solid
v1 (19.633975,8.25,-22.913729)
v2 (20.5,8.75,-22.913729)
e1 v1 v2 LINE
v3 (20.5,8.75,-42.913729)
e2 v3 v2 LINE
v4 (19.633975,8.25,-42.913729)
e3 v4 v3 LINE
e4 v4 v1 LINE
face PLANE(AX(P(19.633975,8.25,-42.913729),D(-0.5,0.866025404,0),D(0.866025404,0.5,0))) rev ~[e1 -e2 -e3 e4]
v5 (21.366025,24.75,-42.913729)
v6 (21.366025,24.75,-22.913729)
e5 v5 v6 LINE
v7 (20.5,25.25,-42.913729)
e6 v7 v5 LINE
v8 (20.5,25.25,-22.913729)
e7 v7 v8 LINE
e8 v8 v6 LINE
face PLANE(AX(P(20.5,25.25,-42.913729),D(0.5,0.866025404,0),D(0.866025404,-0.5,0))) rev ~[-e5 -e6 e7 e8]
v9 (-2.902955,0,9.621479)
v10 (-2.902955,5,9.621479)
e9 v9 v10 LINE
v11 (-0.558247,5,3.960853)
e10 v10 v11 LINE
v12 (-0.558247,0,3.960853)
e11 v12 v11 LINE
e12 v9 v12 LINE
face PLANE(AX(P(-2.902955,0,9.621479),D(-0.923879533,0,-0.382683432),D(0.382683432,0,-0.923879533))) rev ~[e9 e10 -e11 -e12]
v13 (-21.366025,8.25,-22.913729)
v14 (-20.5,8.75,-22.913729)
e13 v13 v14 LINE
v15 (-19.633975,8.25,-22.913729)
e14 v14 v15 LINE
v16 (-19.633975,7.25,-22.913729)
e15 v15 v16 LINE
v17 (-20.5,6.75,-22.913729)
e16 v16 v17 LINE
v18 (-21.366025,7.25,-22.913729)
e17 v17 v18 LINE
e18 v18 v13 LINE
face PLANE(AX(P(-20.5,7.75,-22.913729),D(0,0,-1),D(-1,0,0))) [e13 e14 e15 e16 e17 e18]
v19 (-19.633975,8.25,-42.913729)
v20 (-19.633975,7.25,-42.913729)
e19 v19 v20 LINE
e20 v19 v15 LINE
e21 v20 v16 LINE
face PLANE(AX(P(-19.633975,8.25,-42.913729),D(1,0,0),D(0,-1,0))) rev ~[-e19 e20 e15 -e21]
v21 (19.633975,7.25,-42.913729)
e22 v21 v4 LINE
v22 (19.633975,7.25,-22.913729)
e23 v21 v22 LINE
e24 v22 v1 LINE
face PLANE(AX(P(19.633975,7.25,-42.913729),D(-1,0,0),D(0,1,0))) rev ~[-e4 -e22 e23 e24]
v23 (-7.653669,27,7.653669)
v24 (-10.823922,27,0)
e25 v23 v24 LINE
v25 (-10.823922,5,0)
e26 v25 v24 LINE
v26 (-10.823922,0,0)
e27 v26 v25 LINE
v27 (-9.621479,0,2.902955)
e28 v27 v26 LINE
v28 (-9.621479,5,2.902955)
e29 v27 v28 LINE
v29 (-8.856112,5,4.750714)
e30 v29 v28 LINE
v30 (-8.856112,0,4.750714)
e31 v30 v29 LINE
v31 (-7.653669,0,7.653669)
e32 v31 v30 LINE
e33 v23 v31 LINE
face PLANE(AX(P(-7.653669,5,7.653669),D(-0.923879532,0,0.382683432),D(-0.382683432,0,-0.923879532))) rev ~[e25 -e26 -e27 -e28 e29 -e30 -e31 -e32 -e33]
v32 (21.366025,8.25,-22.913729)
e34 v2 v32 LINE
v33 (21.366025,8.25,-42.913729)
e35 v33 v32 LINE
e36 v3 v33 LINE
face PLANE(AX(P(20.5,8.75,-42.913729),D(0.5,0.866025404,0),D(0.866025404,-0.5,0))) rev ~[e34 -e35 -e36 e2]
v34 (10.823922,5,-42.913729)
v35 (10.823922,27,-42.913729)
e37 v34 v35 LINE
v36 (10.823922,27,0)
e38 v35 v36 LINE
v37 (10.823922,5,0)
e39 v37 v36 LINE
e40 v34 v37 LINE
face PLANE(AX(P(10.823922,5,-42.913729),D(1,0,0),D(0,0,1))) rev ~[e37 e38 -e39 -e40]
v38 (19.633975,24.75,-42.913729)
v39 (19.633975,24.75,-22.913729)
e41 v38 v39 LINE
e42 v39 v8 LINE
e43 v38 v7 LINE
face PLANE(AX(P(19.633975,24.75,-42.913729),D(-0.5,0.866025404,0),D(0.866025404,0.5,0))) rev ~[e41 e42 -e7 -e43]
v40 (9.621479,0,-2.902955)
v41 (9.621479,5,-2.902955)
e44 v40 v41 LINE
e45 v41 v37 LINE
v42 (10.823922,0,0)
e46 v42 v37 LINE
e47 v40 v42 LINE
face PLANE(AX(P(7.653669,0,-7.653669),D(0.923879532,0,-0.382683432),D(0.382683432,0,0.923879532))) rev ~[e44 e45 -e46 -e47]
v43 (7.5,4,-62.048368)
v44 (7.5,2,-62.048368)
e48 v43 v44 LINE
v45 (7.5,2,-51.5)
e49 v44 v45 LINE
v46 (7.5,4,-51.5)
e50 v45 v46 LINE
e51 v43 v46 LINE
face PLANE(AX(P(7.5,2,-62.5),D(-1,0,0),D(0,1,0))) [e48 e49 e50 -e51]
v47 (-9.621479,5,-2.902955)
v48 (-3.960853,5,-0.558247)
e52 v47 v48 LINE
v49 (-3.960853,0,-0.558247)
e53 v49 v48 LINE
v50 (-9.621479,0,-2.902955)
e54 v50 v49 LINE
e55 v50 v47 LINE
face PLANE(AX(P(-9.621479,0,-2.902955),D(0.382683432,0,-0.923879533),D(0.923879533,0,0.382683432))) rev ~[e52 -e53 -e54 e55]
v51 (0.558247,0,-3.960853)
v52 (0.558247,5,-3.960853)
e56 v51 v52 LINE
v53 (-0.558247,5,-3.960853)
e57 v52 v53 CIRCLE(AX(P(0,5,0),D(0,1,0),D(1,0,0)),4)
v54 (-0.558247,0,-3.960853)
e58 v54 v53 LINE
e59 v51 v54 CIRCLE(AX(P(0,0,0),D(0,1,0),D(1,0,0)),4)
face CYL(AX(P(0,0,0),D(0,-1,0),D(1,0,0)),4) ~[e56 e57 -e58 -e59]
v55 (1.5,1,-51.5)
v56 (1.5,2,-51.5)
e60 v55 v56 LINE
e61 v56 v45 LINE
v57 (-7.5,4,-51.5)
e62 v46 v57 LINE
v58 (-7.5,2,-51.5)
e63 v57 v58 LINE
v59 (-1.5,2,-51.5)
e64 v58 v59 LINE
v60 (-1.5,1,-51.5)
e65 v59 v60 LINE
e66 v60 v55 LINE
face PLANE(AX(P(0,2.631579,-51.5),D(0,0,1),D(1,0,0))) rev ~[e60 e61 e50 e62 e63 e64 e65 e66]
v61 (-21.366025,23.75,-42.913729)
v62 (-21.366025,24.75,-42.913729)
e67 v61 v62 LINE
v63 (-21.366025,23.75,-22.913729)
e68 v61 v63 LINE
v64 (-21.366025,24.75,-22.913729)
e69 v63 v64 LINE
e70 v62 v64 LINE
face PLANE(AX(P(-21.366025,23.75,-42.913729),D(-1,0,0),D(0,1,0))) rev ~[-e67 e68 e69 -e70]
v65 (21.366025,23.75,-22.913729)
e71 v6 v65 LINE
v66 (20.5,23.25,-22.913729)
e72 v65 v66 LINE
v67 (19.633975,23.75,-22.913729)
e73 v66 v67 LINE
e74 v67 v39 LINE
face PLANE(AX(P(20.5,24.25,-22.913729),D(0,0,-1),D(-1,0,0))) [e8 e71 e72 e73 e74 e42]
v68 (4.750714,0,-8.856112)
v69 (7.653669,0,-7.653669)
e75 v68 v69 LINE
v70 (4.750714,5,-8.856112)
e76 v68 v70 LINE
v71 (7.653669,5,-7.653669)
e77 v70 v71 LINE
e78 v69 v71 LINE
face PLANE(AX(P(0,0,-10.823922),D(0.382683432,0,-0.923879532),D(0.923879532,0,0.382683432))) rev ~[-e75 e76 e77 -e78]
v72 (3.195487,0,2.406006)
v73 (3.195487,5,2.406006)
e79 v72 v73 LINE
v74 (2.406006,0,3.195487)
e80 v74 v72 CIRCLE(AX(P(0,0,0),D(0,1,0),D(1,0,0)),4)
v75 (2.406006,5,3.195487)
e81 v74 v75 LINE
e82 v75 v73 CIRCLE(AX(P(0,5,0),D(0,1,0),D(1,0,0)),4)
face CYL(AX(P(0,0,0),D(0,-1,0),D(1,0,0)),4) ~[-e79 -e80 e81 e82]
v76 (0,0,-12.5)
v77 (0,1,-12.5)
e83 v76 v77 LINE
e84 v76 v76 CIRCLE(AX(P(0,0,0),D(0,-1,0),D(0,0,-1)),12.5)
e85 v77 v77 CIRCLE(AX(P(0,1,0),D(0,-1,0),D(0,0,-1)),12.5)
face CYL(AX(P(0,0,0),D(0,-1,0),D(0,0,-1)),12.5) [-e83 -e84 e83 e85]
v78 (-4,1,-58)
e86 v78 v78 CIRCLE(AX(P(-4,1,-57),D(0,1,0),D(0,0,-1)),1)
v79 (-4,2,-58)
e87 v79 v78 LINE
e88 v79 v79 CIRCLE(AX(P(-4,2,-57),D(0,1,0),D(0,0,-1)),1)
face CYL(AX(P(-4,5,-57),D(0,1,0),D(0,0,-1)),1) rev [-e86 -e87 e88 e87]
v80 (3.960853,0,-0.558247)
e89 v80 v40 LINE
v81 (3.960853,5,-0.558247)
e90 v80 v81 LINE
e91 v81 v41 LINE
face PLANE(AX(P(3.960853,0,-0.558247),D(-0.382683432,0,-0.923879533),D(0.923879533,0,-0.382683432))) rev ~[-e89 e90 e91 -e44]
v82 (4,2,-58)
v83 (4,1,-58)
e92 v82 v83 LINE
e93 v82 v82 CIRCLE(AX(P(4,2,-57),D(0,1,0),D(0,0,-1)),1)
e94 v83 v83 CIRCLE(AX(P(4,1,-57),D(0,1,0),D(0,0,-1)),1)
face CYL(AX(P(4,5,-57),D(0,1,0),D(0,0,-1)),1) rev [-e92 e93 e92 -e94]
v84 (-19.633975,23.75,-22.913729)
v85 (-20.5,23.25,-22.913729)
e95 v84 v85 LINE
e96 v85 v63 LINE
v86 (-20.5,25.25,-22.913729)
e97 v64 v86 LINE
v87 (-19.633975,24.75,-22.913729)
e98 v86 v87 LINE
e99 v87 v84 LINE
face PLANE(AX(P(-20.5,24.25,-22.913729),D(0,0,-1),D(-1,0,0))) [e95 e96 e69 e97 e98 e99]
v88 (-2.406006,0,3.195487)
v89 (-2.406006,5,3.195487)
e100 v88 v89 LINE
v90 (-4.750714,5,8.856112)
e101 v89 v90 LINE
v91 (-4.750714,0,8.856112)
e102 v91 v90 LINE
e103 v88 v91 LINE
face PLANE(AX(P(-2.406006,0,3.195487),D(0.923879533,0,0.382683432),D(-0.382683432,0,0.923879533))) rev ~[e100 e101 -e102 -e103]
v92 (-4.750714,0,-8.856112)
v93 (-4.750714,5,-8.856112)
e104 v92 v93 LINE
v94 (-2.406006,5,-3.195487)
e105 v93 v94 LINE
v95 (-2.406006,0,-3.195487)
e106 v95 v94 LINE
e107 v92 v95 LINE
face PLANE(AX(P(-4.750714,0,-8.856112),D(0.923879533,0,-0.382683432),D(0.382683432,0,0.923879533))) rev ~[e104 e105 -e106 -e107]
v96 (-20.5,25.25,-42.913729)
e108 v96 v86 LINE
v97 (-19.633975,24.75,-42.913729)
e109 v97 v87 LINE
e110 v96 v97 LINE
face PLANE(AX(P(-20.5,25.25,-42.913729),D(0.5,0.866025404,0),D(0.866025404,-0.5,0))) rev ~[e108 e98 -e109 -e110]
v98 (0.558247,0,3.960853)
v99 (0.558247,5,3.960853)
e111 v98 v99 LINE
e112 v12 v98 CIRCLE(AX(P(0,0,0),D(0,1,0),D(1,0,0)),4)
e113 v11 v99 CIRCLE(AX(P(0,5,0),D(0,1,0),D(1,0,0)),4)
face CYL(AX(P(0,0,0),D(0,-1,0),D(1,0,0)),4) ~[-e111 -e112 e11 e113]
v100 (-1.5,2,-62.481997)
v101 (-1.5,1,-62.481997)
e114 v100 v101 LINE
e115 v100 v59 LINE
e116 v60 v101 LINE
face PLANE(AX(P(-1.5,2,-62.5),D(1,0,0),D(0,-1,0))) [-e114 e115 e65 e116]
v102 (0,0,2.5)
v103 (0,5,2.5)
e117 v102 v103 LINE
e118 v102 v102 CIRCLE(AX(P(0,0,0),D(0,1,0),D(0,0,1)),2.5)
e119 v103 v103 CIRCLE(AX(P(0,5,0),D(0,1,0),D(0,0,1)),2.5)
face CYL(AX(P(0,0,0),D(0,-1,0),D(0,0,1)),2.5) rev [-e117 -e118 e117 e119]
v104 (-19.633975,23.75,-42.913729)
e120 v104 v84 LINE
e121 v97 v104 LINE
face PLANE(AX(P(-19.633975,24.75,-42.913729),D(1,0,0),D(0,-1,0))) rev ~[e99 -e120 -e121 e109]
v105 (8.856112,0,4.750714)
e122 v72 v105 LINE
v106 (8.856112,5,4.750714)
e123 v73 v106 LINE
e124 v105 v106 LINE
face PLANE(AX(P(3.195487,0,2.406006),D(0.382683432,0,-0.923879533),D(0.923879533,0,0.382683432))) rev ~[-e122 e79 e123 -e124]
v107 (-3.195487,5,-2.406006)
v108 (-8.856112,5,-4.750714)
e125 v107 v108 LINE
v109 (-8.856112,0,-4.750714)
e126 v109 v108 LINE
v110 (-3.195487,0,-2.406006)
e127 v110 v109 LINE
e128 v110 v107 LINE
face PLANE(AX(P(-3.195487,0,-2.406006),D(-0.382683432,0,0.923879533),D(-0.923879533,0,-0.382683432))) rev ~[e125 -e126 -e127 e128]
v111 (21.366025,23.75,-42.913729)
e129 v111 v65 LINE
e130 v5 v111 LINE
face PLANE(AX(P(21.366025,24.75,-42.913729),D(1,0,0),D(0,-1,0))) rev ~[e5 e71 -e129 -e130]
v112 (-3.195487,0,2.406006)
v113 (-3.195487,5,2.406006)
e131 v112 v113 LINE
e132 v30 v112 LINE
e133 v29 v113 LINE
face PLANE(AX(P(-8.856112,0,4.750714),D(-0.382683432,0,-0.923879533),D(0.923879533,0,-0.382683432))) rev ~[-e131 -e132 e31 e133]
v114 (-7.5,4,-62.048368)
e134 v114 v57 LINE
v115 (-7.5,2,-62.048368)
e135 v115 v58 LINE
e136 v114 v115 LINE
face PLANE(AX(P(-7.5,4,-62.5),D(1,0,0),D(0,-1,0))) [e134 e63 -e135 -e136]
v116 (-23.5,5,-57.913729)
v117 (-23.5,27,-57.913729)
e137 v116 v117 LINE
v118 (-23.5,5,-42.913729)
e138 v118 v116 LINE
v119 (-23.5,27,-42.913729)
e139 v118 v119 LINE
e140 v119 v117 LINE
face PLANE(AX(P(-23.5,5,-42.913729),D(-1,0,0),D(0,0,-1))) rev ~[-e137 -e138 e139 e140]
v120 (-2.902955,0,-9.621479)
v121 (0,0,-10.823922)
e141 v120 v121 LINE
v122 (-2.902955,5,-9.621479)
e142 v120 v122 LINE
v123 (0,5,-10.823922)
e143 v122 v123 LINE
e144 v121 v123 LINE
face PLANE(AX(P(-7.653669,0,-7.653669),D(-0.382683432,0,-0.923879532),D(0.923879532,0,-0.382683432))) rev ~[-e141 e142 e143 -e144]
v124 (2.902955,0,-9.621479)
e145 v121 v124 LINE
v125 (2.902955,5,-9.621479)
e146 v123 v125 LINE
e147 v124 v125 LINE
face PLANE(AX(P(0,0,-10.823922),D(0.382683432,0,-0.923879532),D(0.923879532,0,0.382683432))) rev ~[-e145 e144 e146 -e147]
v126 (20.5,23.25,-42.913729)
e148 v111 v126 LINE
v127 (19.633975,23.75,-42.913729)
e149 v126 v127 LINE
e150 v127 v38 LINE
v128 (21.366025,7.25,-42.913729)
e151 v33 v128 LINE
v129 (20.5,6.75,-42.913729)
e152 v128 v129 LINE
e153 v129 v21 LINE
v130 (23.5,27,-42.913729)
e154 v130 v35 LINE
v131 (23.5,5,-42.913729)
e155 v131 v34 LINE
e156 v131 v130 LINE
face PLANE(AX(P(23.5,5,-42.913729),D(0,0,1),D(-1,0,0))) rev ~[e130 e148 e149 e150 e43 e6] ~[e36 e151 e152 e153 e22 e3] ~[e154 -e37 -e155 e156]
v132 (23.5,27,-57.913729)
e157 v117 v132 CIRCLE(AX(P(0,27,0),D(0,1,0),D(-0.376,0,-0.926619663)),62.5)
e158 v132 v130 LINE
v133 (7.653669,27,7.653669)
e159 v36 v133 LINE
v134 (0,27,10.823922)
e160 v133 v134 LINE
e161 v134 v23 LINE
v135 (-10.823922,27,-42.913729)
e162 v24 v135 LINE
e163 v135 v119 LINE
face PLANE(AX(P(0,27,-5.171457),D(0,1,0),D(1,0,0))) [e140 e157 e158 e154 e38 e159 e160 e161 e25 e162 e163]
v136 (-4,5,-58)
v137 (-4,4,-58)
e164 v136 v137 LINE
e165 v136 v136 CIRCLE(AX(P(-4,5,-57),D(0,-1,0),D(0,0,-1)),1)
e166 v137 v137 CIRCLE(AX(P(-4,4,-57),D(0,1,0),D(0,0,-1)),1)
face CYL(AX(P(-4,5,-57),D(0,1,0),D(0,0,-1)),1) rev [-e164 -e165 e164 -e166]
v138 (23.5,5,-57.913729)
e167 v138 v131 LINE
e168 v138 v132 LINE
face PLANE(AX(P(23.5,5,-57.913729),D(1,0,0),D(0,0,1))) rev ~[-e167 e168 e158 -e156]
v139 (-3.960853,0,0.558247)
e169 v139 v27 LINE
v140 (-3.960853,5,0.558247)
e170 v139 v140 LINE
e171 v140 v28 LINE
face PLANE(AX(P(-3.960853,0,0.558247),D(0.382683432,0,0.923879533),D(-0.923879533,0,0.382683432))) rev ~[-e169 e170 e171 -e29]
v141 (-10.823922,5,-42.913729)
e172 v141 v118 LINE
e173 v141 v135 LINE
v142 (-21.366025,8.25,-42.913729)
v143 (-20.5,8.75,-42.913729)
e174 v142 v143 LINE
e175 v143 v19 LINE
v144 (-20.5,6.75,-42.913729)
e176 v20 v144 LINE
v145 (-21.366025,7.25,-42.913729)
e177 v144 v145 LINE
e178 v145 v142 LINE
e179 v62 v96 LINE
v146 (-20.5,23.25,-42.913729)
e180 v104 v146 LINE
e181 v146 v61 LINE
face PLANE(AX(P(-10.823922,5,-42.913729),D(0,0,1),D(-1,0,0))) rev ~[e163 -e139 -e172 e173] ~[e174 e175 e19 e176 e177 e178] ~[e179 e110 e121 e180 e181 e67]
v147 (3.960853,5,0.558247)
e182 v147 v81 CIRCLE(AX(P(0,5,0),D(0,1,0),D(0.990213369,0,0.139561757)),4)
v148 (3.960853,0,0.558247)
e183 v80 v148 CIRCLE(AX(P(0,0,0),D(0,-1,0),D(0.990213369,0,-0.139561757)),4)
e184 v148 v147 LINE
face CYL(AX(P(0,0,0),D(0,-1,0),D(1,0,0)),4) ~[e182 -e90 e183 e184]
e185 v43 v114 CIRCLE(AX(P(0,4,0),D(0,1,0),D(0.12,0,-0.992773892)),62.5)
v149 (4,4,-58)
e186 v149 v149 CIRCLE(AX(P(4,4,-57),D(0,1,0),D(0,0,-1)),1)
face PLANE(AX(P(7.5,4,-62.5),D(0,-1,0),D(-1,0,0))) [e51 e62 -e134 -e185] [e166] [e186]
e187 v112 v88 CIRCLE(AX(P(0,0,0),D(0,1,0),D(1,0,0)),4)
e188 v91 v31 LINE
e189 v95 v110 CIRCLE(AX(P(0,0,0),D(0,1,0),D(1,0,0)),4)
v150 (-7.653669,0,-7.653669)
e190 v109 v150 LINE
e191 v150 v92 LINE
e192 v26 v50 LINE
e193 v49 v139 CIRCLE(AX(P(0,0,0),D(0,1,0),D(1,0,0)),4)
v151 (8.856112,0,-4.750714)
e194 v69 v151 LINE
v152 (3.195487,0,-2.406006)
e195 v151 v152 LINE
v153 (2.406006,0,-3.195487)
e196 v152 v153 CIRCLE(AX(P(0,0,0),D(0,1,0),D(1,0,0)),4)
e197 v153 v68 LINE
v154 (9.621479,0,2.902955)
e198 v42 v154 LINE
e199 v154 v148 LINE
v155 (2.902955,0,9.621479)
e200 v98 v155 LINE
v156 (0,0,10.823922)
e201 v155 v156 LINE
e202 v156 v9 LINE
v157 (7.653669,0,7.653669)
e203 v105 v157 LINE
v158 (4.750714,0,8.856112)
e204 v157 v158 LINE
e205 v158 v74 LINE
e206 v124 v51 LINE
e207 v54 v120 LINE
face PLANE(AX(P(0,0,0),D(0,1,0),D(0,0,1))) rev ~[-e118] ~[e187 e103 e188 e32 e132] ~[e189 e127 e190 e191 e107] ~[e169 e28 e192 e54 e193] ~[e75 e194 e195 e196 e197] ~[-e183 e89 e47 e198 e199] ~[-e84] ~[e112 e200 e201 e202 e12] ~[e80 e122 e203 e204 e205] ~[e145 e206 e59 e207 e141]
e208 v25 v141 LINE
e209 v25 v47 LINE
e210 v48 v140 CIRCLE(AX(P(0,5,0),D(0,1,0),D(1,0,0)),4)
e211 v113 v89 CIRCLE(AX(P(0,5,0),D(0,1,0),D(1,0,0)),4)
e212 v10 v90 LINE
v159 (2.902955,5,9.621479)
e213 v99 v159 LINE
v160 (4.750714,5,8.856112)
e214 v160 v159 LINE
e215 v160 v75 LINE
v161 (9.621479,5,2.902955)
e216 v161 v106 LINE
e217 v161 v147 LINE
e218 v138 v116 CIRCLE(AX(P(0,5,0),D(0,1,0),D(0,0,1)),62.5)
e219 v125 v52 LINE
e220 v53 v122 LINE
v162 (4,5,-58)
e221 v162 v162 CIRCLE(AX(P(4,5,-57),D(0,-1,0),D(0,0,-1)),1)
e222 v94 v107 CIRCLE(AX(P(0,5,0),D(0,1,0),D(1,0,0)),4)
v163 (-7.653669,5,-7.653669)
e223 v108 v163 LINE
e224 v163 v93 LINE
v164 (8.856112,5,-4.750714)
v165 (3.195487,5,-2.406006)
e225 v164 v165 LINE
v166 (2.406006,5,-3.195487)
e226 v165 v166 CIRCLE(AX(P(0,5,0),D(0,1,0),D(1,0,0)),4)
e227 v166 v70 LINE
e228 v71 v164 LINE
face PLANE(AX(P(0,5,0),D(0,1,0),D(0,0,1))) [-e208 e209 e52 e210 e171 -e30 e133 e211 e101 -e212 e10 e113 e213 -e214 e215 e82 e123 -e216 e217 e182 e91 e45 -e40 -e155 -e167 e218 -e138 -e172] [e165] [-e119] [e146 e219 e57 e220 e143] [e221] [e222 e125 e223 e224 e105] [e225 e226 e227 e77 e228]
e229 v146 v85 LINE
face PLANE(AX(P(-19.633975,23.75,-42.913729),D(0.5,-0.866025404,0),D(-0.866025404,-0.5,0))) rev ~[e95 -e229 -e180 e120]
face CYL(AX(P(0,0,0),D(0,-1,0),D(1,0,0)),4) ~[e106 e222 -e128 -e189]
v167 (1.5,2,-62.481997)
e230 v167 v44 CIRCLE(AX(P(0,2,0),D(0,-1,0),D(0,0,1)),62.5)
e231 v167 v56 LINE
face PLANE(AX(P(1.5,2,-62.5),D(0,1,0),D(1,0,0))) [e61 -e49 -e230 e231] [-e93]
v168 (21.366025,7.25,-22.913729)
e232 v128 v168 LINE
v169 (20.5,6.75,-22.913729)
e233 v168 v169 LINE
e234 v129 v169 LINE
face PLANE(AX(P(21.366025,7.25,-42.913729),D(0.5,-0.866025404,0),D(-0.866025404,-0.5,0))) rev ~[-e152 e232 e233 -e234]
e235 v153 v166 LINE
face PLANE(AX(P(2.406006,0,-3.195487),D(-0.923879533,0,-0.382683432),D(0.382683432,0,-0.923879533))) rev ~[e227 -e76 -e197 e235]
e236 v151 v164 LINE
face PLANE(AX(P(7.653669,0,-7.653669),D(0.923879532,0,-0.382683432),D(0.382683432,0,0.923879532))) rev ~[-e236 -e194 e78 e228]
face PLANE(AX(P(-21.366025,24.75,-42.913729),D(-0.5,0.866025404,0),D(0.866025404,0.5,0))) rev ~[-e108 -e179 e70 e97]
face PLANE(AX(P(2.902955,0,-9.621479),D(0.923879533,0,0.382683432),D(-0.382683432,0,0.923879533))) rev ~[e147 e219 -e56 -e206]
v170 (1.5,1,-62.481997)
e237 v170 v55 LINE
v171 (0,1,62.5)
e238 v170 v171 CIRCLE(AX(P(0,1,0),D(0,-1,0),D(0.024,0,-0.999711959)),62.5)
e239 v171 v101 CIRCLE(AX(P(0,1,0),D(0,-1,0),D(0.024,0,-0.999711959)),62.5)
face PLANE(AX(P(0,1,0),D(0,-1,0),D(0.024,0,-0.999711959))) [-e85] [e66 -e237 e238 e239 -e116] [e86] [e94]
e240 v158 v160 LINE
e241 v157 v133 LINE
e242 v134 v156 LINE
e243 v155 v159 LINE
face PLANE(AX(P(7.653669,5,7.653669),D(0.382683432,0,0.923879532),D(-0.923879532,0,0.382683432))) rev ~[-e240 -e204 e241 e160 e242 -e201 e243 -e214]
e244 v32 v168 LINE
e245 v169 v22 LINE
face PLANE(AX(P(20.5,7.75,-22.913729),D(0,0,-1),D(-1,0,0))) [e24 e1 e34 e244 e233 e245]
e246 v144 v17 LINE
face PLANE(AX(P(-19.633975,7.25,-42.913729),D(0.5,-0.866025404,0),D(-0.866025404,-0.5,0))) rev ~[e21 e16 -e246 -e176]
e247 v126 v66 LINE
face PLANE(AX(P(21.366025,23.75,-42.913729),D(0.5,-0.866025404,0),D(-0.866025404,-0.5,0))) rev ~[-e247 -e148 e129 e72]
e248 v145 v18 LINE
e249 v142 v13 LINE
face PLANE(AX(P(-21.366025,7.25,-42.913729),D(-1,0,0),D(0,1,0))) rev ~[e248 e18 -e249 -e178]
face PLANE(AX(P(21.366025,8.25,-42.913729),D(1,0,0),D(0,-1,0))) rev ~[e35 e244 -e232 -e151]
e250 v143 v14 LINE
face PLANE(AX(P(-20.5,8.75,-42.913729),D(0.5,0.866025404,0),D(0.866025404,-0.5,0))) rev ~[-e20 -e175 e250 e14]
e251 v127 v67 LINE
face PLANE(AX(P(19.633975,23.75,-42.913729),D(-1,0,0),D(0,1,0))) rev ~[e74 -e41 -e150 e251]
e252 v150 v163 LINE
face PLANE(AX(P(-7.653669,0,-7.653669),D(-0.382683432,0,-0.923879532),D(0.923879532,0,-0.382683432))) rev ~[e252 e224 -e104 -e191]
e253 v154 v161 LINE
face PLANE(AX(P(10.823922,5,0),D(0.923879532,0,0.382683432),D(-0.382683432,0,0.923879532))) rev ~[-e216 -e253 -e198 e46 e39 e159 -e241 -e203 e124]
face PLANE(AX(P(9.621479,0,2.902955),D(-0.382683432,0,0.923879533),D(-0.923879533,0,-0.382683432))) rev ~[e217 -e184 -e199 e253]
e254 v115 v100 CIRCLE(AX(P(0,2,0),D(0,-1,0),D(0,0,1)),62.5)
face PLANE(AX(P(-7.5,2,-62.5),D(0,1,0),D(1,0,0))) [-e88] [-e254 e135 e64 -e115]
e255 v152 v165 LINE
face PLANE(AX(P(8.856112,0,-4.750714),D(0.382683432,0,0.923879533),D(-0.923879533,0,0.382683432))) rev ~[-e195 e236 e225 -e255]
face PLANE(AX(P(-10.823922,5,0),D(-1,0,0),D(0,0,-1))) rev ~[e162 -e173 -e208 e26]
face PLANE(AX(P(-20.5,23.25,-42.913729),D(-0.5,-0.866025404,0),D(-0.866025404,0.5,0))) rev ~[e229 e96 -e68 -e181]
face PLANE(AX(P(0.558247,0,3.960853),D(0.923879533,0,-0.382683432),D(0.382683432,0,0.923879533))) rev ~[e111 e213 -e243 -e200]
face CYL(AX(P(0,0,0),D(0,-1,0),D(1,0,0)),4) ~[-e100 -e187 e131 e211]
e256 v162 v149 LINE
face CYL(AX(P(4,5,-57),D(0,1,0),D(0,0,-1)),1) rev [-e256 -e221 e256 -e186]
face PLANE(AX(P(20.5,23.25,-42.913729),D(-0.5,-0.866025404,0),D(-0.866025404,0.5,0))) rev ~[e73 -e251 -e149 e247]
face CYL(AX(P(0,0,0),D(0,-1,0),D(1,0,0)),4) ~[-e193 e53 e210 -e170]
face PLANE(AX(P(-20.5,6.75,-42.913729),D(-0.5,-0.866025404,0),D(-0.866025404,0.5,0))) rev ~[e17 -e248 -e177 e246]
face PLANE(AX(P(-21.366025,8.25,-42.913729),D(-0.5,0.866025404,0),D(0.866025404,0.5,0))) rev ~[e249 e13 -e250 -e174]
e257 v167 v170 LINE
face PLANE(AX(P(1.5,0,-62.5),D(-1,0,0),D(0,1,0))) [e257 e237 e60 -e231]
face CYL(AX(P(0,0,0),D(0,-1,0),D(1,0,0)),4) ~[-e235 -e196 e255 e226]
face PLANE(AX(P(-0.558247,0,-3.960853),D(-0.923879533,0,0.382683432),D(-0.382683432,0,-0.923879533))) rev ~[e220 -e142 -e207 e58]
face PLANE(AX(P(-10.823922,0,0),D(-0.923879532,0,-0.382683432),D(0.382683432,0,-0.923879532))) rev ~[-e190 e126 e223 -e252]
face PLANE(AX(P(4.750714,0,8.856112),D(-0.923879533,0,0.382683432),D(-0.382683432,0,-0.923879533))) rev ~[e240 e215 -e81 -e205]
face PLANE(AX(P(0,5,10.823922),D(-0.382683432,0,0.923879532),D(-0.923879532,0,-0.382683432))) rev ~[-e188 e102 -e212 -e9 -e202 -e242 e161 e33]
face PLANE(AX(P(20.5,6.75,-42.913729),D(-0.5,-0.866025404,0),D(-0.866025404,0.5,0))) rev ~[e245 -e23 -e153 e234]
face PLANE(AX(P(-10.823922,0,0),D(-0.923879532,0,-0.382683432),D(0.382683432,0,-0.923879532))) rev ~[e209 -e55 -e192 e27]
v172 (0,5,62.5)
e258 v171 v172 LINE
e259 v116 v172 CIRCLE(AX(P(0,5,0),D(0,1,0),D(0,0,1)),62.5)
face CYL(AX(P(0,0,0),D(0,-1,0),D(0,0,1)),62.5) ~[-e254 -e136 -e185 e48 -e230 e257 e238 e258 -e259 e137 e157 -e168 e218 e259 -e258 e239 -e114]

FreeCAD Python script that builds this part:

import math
import FreeCAD as App
import Part
import Sketcher

V = App.Vector
Q = App.Units.Quantity

doc = App.newDocument("Part")
body = doc.addObject("PartDesign::Body", "Body")

# Sketch on XZ plane
sketch1 = body.newObject("Sketcher::SketchObject", "Sketch")
sketch1.AttachmentSupport = (doc.getObject("XZ_Plane"), [""])
sketch1.MapMode = "FlatFace"
sketch1.addGeometry([
    Part.Circle(V(0, 0, 0), V(0, 0, 1), 62.5),  # 0
    Part.LineSegment(V(-7.653669, 7.653669, 0), V(-8.856112, 4.750714, 0)),  # 1
    Part.LineSegment(V(-8.856112, 4.750714, 0), V(-3.195487, 2.406006, 0)),  # 2
    Part.ArcOfCircle(Part.Circle(V(0, 0, 0), V(0, 0, 1), 4), math.radians(126.977512), math.radians(143.022488)),  # 3
    Part.LineSegment(V(-2.406006, 3.195487, 0), V(-4.750714, 8.856112, 0)),  # 4
    Part.LineSegment(V(-4.750714, 8.856112, 0), V(-7.653669, 7.653669, 0)),  # 5
    Part.LineSegment(V(-9.621479, 2.902955, 0), V(-10.823922, 0, 0)),  # 6
    Part.LineSegment(V(-10.823922, 0, 0), V(-9.621479, -2.902955, 0)),  # 7
    Part.LineSegment(V(-9.621479, -2.902955, 0), V(-3.960853, -0.558247, 0)),  # 8
    Part.ArcOfCircle(Part.Circle(V(0, 0, 0), V(0, 0, 1), 4), math.radians(171.977512), math.radians(188.022488)),  # 9
    Part.LineSegment(V(-3.960853, 0.558247, 0), V(-9.621479, 2.902955, 0)),  # 10
    Part.LineSegment(V(0, 10.823922, 0), V(-2.902955, 9.621479, 0)),  # 11
    Part.LineSegment(V(-2.902955, 9.621479, 0), V(-0.558247, 3.960853, 0)),  # 12
    Part.ArcOfCircle(Part.Circle(V(0, 0, 0), V(0, 0, 1), 4), math.radians(81.977512), math.radians(98.022488)),  # 13
    Part.LineSegment(V(0.558247, 3.960853, 0), V(2.902955, 9.621479, 0)),  # 14
    Part.LineSegment(V(2.902955, 9.621479, 0), V(0, 10.823922, 0)),  # 15
    Part.LineSegment(V(7.653669, 7.653669, 0), V(4.750714, 8.856112, 0)),  # 16
    Part.LineSegment(V(4.750714, 8.856112, 0), V(2.406006, 3.195487, 0)),  # 17
    Part.ArcOfCircle(Part.Circle(V(0, 0, 0), V(0, 0, 1), 4), math.radians(36.977512), math.radians(53.022488)),  # 18
    Part.LineSegment(V(3.195487, 2.406006, 0), V(8.856112, 4.750714, 0)),  # 19
    Part.LineSegment(V(8.856112, 4.750714, 0), V(7.653669, 7.653669, 0)),  # 20
    Part.LineSegment(V(10.823922, 0, 0), V(9.621479, 2.902955, 0)),  # 21
    Part.LineSegment(V(9.621479, 2.902955, 0), V(3.960853, 0.558247, 0)),  # 22
    Part.ArcOfCircle(Part.Circle(V(0, 0, 0), V(0, 0, 1), 4), math.radians(-8.022488), math.radians(8.022488)),  # 23
    Part.LineSegment(V(3.960853, -0.558247, 0), V(9.621479, -2.902955, 0)),  # 24
    Part.LineSegment(V(9.621479, -2.902955, 0), V(10.823922, 0, 0)),  # 25
    Part.LineSegment(V(7.653669, -7.653669, 0), V(8.856112, -4.750714, 0)),  # 26
    Part.LineSegment(V(8.856112, -4.750714, 0), V(3.195487, -2.406006, 0)),  # 27
    Part.ArcOfCircle(Part.Circle(V(0, 0, 0), V(0, 0, 1), 4), math.radians(-53.022488), math.radians(-36.977512)),  # 28
    Part.LineSegment(V(2.406006, -3.195487, 0), V(4.750714, -8.856112, 0)),  # 29
    Part.LineSegment(V(4.750714, -8.856112, 0), V(7.653669, -7.653669, 0)),  # 30
    Part.LineSegment(V(0, -10.823922, 0), V(2.902955, -9.621479, 0)),  # 31
    Part.LineSegment(V(2.902955, -9.621479, 0), V(0.558247, -3.960853, 0)),  # 32
    Part.ArcOfCircle(Part.Circle(V(0, 0, 0), V(0, 0, 1), 4), math.radians(-98.022488), math.radians(-81.977512)),  # 33
    Part.LineSegment(V(-0.558247, -3.960853, 0), V(-2.902955, -9.621479, 0)),  # 34
    Part.LineSegment(V(-2.902955, -9.621479, 0), V(0, -10.823922, 0)),  # 35
    Part.LineSegment(V(-7.653669, -7.653669, 0), V(-4.750714, -8.856112, 0)),  # 36
    Part.LineSegment(V(-4.750714, -8.856112, 0), V(-2.406006, -3.195487, 0)),  # 37
    Part.ArcOfCircle(Part.Circle(V(0, 0, 0), V(0, 0, 1), 4), math.radians(-143.022488), math.radians(-126.977512)),  # 38
    Part.LineSegment(V(-3.195487, -2.406006, 0), V(-8.856112, -4.750714, 0)),  # 39
    Part.LineSegment(V(-8.856112, -4.750714, 0), V(-7.653669, -7.653669, 0)),  # 40
    Part.Circle(V(0, 0, 0), V(0, 0, 1), 2.5),  # 41
], False)
sketch1.addConstraint([
    Sketcher.Constraint("Coincident", 1, 2, 2, 1),
    Sketcher.Constraint("Coincident", 2, 2, 3, 2),
    Sketcher.Constraint("Coincident", 3, 1, 4, 1),
    Sketcher.Constraint("Coincident", 4, 2, 5, 1),
    Sketcher.Constraint("Coincident", 5, 2, 1, 1),
    Sketcher.Constraint("Coincident", 6, 2, 7, 1),
    Sketcher.Constraint("Coincident", 7, 2, 8, 1),
    Sketcher.Constraint("Coincident", 8, 2, 9, 2),
    Sketcher.Constraint("Coincident", 9, 1, 10, 1),
    Sketcher.Constraint("Coincident", 10, 2, 6, 1),
    Sketcher.Constraint("Coincident", 11, 2, 12, 1),
    Sketcher.Constraint("Coincident", 12, 2, 13, 2),
    Sketcher.Constraint("Coincident", 13, 1, 14, 1),
    Sketcher.Constraint("Coincident", 14, 2, 15, 1),
    Sketcher.Constraint("Coincident", 15, 2, 11, 1),
    Sketcher.Constraint("Coincident", 16, 2, 17, 1),
    Sketcher.Constraint("Coincident", 17, 2, 18, 2),
    Sketcher.Constraint("Coincident", 18, 1, 19, 1),
    Sketcher.Constraint("Coincident", 19, 2, 20, 1),
    Sketcher.Constraint("Coincident", 20, 2, 16, 1),
    Sketcher.Constraint("Coincident", 21, 2, 22, 1),
    Sketcher.Constraint("Coincident", 22, 2, 23, 2),
    Sketcher.Constraint("Coincident", 23, 1, 24, 1),
    Sketcher.Constraint("Coincident", 24, 2, 25, 1),
    Sketcher.Constraint("Coincident", 25, 2, 21, 1),
    Sketcher.Constraint("Coincident", 26, 2, 27, 1),
    Sketcher.Constraint("Coincident", 27, 2, 28, 2),
    Sketcher.Constraint("Coincident", 28, 1, 29, 1),
    Sketcher.Constraint("Coincident", 29, 2, 30, 1),
    Sketcher.Constraint("Coincident", 30, 2, 26, 1),
    Sketcher.Constraint("Coincident", 31, 2, 32, 1),
    Sketcher.Constraint("Coincident", 32, 2, 33, 2),
    Sketcher.Constraint("Coincident", 33, 1, 34, 1),
    Sketcher.Constraint("Coincident", 34, 2, 35, 1),
    Sketcher.Constraint("Coincident", 35, 2, 31, 1),
    Sketcher.Constraint("Coincident", 36, 2, 37, 1),
    Sketcher.Constraint("Coincident", 37, 2, 38, 2),
    Sketcher.Constraint("Coincident", 38, 1, 39, 1),
    Sketcher.Constraint("Coincident", 39, 2, 40, 1),
    Sketcher.Constraint("Coincident", 40, 2, 36, 1),
    Sketcher.Constraint("Coincident", 0, 3, -1, 1),
    Sketcher.Constraint("Coincident", 3, 3, -1, 1),
    Sketcher.Constraint("Coincident", 9, 3, -1, 1),
    Sketcher.Constraint("Coincident", 13, 3, -1, 1),
    Sketcher.Constraint("Coincident", 18, 3, -1, 1),
    Sketcher.Constraint("Coincident", 23, 3, -1, 1),
    Sketcher.Constraint("Coincident", 28, 3, -1, 1),
    Sketcher.Constraint("Coincident", 33, 3, -1, 1),
    Sketcher.Constraint("Coincident", 38, 3, -1, 1),
    Sketcher.Constraint("Coincident", 41, 3, -1, 1),
    Sketcher.Constraint("Equal", 3, 9),
    Sketcher.Constraint("Equal", 9, 13),
    Sketcher.Constraint("Equal", 13, 18),
    Sketcher.Constraint("Equal", 18, 23),
    Sketcher.Constraint("Equal", 23, 28),
    Sketcher.Constraint("Equal", 28, 33),
    Sketcher.Constraint("Equal", 33, 38),
    Sketcher.Constraint("Symmetric", 7, 2, 21, 2, -1, 1),
    Sketcher.Constraint("Symmetric", 10, 2, 24, 2, -1, 1),
    Sketcher.Constraint("Symmetric", 6, 2, 25, 2, -1, 1),
    Sketcher.Constraint("Symmetric", 1, 2, 26, 2, -1, 1),
    Sketcher.Constraint("Symmetric", 4, 2, 29, 2, -1, 1),
    Sketcher.Constraint("Symmetric", 5, 2, 30, 2, -1, 1),
    Sketcher.Constraint("Symmetric", 11, 2, 31, 2, -1, 1),
    Sketcher.Constraint("Symmetric", 14, 2, 34, 2, -1, 1),
    Sketcher.Constraint("Symmetric", 15, 2, 35, 2, -1, 1),
    Sketcher.Constraint("Symmetric", 16, 2, 36, 2, -1, 1),
    Sketcher.Constraint("Symmetric", 19, 2, 39, 2, -1, 1),
    Sketcher.Constraint("Symmetric", 20, 2, 40, 2, -1, 1),
    Sketcher.Constraint("Symmetric", 11, 2, 14, 2, -2),
    Sketcher.Constraint("Symmetric", 4, 2, 16, 2, -2),
    Sketcher.Constraint("Symmetric", 1, 2, 19, 2, -2),
    Sketcher.Constraint("Symmetric", 5, 2, 20, 2, -2),
    Sketcher.Constraint("Symmetric", 10, 2, 21, 2, -2),
    Sketcher.Constraint("PointOnObject", 6, 2, -1),
    Sketcher.Constraint("PointOnObject", 15, 2, -2),
    Sketcher.Constraint("Perpendicular", 1, 2),
    Sketcher.Constraint("Perpendicular", 4, 5),
    Sketcher.Constraint("Perpendicular", 2, 6),
    Sketcher.Constraint("Perpendicular", 5, 7),
    Sketcher.Constraint("Perpendicular", 7, 8),
    Sketcher.Constraint("Perpendicular", 6, 10),
    Sketcher.Constraint("Parallel", 8, 11),
    Sketcher.Constraint("Perpendicular", 11, 12),
    Sketcher.Constraint("Perpendicular", 10, 14),
    Sketcher.Constraint("Perpendicular", 16, 17),
    Sketcher.Constraint("Perpendicular", 12, 19),
    Sketcher.Constraint("Perpendicular", 21, 22),
    Sketcher.Constraint("Perpendicular", 17, 24),
    Sketcher.Constraint("Perpendicular", 26, 27),
    Sketcher.Constraint("Perpendicular", 22, 29),
    Sketcher.Constraint("Perpendicular", 31, 32),
    Sketcher.Constraint("Perpendicular", 27, 34),
    Sketcher.Constraint("Perpendicular", 36, 37),
    Sketcher.Constraint("Perpendicular", 32, 39),
    Sketcher.Constraint("Equal", 2, 4),
    Sketcher.Constraint("Equal", 1, 5),
    Sketcher.Constraint("Equal", 5, 6),
    Sketcher.Constraint("Equal", 4, 8),
    Sketcher.Constraint("Equal", 7, 11),
    Sketcher.Constraint("Equal", 10, 12),
    Sketcher.Constraint("Diameter", 0, 125.0),
    Sketcher.Constraint("Diameter", 41, 5.0),
    Sketcher.Constraint("Radius", 3, 4.0),
    Sketcher.Constraint("Angle", 1, Q("-112.5 deg")),
    Sketcher.Constraint("DistanceX", 1, 2, 4, 2, 4.105398),
    Sketcher.Constraint("DistanceX", 12, 2, 14, 2, 3.461202),
])
pad1 = body.newObject("PartDesign::Pad", "Pad")
pad1.Profile = sketch1
pad1.Length = 5
pad1.Reversed = True

# Sketch on XZ plane
sketch2 = body.newObject("Sketcher::SketchObject", "Sketch001")
sketch2.AttachmentSupport = (doc.getObject("XZ_Plane"), [""])
sketch2.MapMode = "FlatFace"
sketch2.AttachmentOffset = App.Placement(V(0, 0, -5), App.Rotation())
sketch2.addGeometry([
    Part.LineSegment(V(-10.823922, 0, 0), V(-10.823922, -42.913729, 0)),  # 0
    Part.LineSegment(V(-10.823922, -42.913729, 0), V(-23.5, -42.913729, 0)),  # 1
    Part.LineSegment(V(-23.5, -42.913729, 0), V(-23.5, -57.913729, 0)),  # 2
    Part.ArcOfCircle(Part.Circle(V(0, 0, 0), V(0, 0, 1), 62.5), math.radians(-67.913868), math.radians(247.913868)),  # 3
    Part.LineSegment(V(23.5, -57.913729, 0), V(23.5, -42.913729, 0)),  # 4
    Part.LineSegment(V(23.5, -42.913729, 0), V(10.823922, -42.913729, 0)),  # 5
    Part.LineSegment(V(10.823922, -42.913729, 0), V(10.823922, 0, 0)),  # 6
    Part.LineSegment(V(10.823922, 0, 0), V(7.653669, 7.653669, 0)),  # 7
    Part.LineSegment(V(7.653669, 7.653669, 0), V(0, 10.823922, 0)),  # 8
    Part.LineSegment(V(0, 10.823922, 0), V(-7.653669, 7.653669, 0)),  # 9
    Part.LineSegment(V(-7.653669, 7.653669, 0), V(-10.823922, 0, 0)),  # 10
], False)
sketch2.addConstraint([
    Sketcher.Constraint("Coincident", 0, 2, 1, 1),
    Sketcher.Constraint("Coincident", 1, 2, 2, 1),
    Sketcher.Constraint("Coincident", 2, 2, 3, 2),
    Sketcher.Constraint("Coincident", 3, 1, 4, 1),
    Sketcher.Constraint("Coincident", 4, 2, 5, 1),
    Sketcher.Constraint("Coincident", 5, 2, 6, 1),
    Sketcher.Constraint("Coincident", 6, 2, 7, 1),
    Sketcher.Constraint("Coincident", 7, 2, 8, 1),
    Sketcher.Constraint("Coincident", 8, 2, 9, 1),
    Sketcher.Constraint("Coincident", 9, 2, 10, 1),
    Sketcher.Constraint("Coincident", 10, 2, 0, 1),
    Sketcher.Constraint("Vertical", 0),
    Sketcher.Constraint("Horizontal", 1),
    Sketcher.Constraint("Vertical", 2),
    Sketcher.Constraint("Vertical", 4),
    Sketcher.Constraint("Horizontal", 5),
    Sketcher.Constraint("Vertical", 6),
    Sketcher.Constraint("Coincident", 3, 3, -1, 1),
    Sketcher.Constraint("Symmetric", 6, 2, 10, 2, -1, 1),
    Sketcher.Constraint("Symmetric", 1, 2, 4, 2, -2),
    Sketcher.Constraint("Symmetric", 7, 2, 9, 2, -2),
    Sketcher.Constraint("PointOnObject", 6, 2, -1),
    Sketcher.Constraint("PointOnObject", 8, 2, -2),
    Sketcher.Constraint("Perpendicular", 7, 9),
    Sketcher.Constraint("Equal", 7, 8),
    Sketcher.Constraint("Radius", 3, 62.5),
    Sketcher.Constraint("DistanceY", 2, 2, 2, 1, 15.0),
    Sketcher.Constraint("Angle", 7, Q("112.5 deg")),
    Sketcher.Constraint("DistanceX", 2, 2, 3, 1, 47.0),
    Sketcher.Constraint("Distance", 7, 8.284271),
])
pad2 = body.newObject("PartDesign::Pad", "Pad001")
pad2.Profile = sketch2
pad2.Length = 22
pad2.Reversed = True

# Sketch on XY plane
sketch3 = body.newObject("Sketcher::SketchObject", "Sketch002")
sketch3.AttachmentSupport = (doc.getObject("XY_Plane"), [""])
sketch3.MapMode = "FlatFace"
sketch3.AttachmentOffset = App.Placement(V(0, 0, -42.913729), App.Rotation())
sketch3.addGeometry([
    Part.LineSegment(V(20.5, 25.25, 0), V(21.366025, 24.75, 0)),  # 0
    Part.LineSegment(V(21.366025, 24.75, 0), V(21.366025, 23.75, 0)),  # 1
    Part.LineSegment(V(21.366025, 23.75, 0), V(20.5, 23.25, 0)),  # 2
    Part.LineSegment(V(20.5, 23.25, 0), V(19.633975, 23.75, 0)),  # 3
    Part.LineSegment(V(19.633975, 23.75, 0), V(19.633975, 24.75, 0)),  # 4
    Part.LineSegment(V(19.633975, 24.75, 0), V(20.5, 25.25, 0)),  # 5
    Part.LineSegment(V(20.5, 8.75, 0), V(21.366025, 8.25, 0)),  # 6
    Part.LineSegment(V(21.366025, 8.25, 0), V(21.366025, 7.25, 0)),  # 7
    Part.LineSegment(V(21.366025, 7.25, 0), V(20.5, 6.75, 0)),  # 8
    Part.LineSegment(V(20.5, 6.75, 0), V(19.633975, 7.25, 0)),  # 9
    Part.LineSegment(V(19.633975, 7.25, 0), V(19.633975, 8.25, 0)),  # 10
    Part.LineSegment(V(19.633975, 8.25, 0), V(20.5, 8.75, 0)),  # 11
    Part.LineSegment(V(-20.5, 8.75, 0), V(-19.633975, 8.25, 0)),  # 12
    Part.LineSegment(V(-19.633975, 8.25, 0), V(-19.633975, 7.25, 0)),  # 13
    Part.LineSegment(V(-19.633975, 7.25, 0), V(-20.5, 6.75, 0)),  # 14
    Part.LineSegment(V(-20.5, 6.75, 0), V(-21.366025, 7.25, 0)),  # 15
    Part.LineSegment(V(-21.366025, 7.25, 0), V(-21.366025, 8.25, 0)),  # 16
    Part.LineSegment(V(-21.366025, 8.25, 0), V(-20.5, 8.75, 0)),  # 17
    Part.LineSegment(V(-20.5, 25.25, 0), V(-19.633975, 24.75, 0)),  # 18
    Part.LineSegment(V(-19.633975, 24.75, 0), V(-19.633975, 23.75, 0)),  # 19
    Part.LineSegment(V(-19.633975, 23.75, 0), V(-20.5, 23.25, 0)),  # 20
    Part.LineSegment(V(-20.5, 23.25, 0), V(-21.366025, 23.75, 0)),  # 21
    Part.LineSegment(V(-21.366025, 23.75, 0), V(-21.366025, 24.75, 0)),  # 22
    Part.LineSegment(V(-21.366025, 24.75, 0), V(-20.5, 25.25, 0)),  # 23
], False)
sketch3.addConstraint([
    Sketcher.Constraint("Coincident", 0, 2, 1, 1),
    Sketcher.Constraint("Coincident", 1, 2, 2, 1),
    Sketcher.Constraint("Coincident", 2, 2, 3, 1),
    Sketcher.Constraint("Coincident", 3, 2, 4, 1),
    Sketcher.Constraint("Coincident", 4, 2, 5, 1),
    Sketcher.Constraint("Coincident", 5, 2, 0, 1),
    Sketcher.Constraint("Coincident", 6, 2, 7, 1),
    Sketcher.Constraint("Coincident", 7, 2, 8, 1),
    Sketcher.Constraint("Coincident", 8, 2, 9, 1),
    Sketcher.Constraint("Coincident", 9, 2, 10, 1),
    Sketcher.Constraint("Coincident", 10, 2, 11, 1),
    Sketcher.Constraint("Coincident", 11, 2, 6, 1),
    Sketcher.Constraint("Coincident", 12, 2, 13, 1),
    Sketcher.Constraint("Coincident", 13, 2, 14, 1),
    Sketcher.Constraint("Coincident", 14, 2, 15, 1),
    Sketcher.Constraint("Coincident", 15, 2, 16, 1),
    Sketcher.Constraint("Coincident", 16, 2, 17, 1),
    Sketcher.Constraint("Coincident", 17, 2, 12, 1),
    Sketcher.Constraint("Coincident", 18, 2, 19, 1),
    Sketcher.Constraint("Coincident", 19, 2, 20, 1),
    Sketcher.Constraint("Coincident", 20, 2, 21, 1),
    Sketcher.Constraint("Coincident", 21, 2, 22, 1),
    Sketcher.Constraint("Coincident", 22, 2, 23, 1),
    Sketcher.Constraint("Coincident", 23, 2, 18, 1),
    Sketcher.Constraint("Vertical", 1),
    Sketcher.Constraint("Vertical", 4),
    Sketcher.Constraint("Vertical", 7),
    Sketcher.Constraint("Vertical", 10),
    Sketcher.Constraint("Vertical", 13),
    Sketcher.Constraint("Vertical", 16),
    Sketcher.Constraint("Vertical", 19),
    Sketcher.Constraint("Vertical", 22),
    Sketcher.Constraint("Symmetric", 10, 2, 12, 2, -2),
    Sketcher.Constraint("Symmetric", 8, 2, 14, 2, -2),
    Sketcher.Constraint("Symmetric", 7, 2, 15, 2, -2),
    Sketcher.Constraint("Symmetric", 11, 2, 17, 2, -2),
    Sketcher.Constraint("Symmetric", 4, 2, 18, 2, -2),
    Sketcher.Constraint("Symmetric", 2, 2, 20, 2, -2),
    Sketcher.Constraint("Symmetric", 1, 2, 21, 2, -2),
    Sketcher.Constraint("Symmetric", 5, 2, 23, 2, -2),
    Sketcher.Constraint("Parallel", 0, 3),
    Sketcher.Constraint("Parallel", 2, 5),
    Sketcher.Constraint("Parallel", 3, 6),
    Sketcher.Constraint("Parallel", 5, 8),
    Sketcher.Constraint("Parallel", 6, 9),
    Sketcher.Constraint("Parallel", 8, 11),
    Sketcher.Constraint("Parallel", 9, 12),
    Sketcher.Constraint("Parallel", 11, 14),
    Sketcher.Constraint("Parallel", 14, 17),
    Sketcher.Constraint("Parallel", 17, 20),
    Sketcher.Constraint("Parallel", 20, 23),
    Sketcher.Constraint("Horizontal", 1, 2, 3, 2),
    Sketcher.Constraint("Horizontal", 0, 2, 4, 2),
    Sketcher.Constraint("Horizontal", 7, 2, 9, 2),
    Sketcher.Constraint("Horizontal", 6, 2, 10, 2),
    Sketcher.Constraint("Vertical", 1, 2, 6, 2),
    Sketcher.Constraint("Vertical", 5, 2, 8, 2),
    Sketcher.Constraint("Equal", 4, 7),
    Sketcher.Constraint("DistanceY", 1, 2, 1, 1, 1.0),
    Sketcher.Constraint("Angle", 0, Q("-30 deg")),
    Sketcher.Constraint("Distance", 0, 1.0),
    Sketcher.Constraint("DistanceY", 6, 2, 2, 2, 15.0),
    Sketcher.Constraint("DistanceX", 12, 2, 6, 2, 41.0),
    Sketcher.Constraint("DistanceY", -1, 1, 0, 2, 24.75),
])
pocket1 = body.newObject("PartDesign::Pocket", "Pocket")
pocket1.Profile = sketch3
pocket1.Length = 20
pocket1.Reversed = True

# Sketch on XY plane
sketch4 = body.newObject("Sketcher::SketchObject", "Sketch003")
sketch4.AttachmentSupport = (doc.getObject("XY_Plane"), [""])
sketch4.MapMode = "FlatFace"
sketch4.AttachmentOffset = App.Placement(V(0, 0, -62.5), App.Rotation())
sketch4.addGeometry([
    Part.LineSegment(V(-7.5, 4, 0), V(7.5, 4, 0)),  # 0
    Part.LineSegment(V(7.5, 4, 0), V(7.5, 2, 0)),  # 1
    Part.LineSegment(V(7.5, 2, 0), V(1.5, 2, 0)),  # 2
    Part.LineSegment(V(1.5, 2, 0), V(1.5, 0, 0)),  # 3
    Part.LineSegment(V(1.5, 0, 0), V(-1.5, 0, 0)),  # 4
    Part.LineSegment(V(-1.5, 0, 0), V(-1.5, 2, 0)),  # 5
    Part.LineSegment(V(-1.5, 2, 0), V(-7.5, 2, 0)),  # 6
    Part.LineSegment(V(-7.5, 2, 0), V(-7.5, 4, 0)),  # 7
], False)
sketch4.addConstraint([
    Sketcher.Constraint("Coincident", 0, 2, 1, 1),
    Sketcher.Constraint("Coincident", 1, 2, 2, 1),
    Sketcher.Constraint("Coincident", 2, 2, 3, 1),
    Sketcher.Constraint("Coincident", 3, 2, 4, 1),
    Sketcher.Constraint("Coincident", 4, 2, 5, 1),
    Sketcher.Constraint("Coincident", 5, 2, 6, 1),
    Sketcher.Constraint("Coincident", 6, 2, 7, 1),
    Sketcher.Constraint("Coincident", 7, 2, 0, 1),
    Sketcher.Constraint("Horizontal", 0),
    Sketcher.Constraint("Vertical", 1),
    Sketcher.Constraint("Horizontal", 2),
    Sketcher.Constraint("Vertical", 3),
    Sketcher.Constraint("Horizontal", 4),
    Sketcher.Constraint("Vertical", 5),
    Sketcher.Constraint("Horizontal", 6),
    Sketcher.Constraint("Vertical", 7),
    Sketcher.Constraint("Symmetric", 3, 2, 4, 2, -1, 1),
    Sketcher.Constraint("Symmetric", 1, 2, 6, 2, -2),
    Sketcher.Constraint("Equal", 1, 3),
    Sketcher.Constraint("DistanceX", 0, 1, 0, 2, 15.0),
    Sketcher.Constraint("DistanceX", 2, 2, 2, 1, 6.0),
    Sketcher.Constraint("DistanceY", 1, 2, 1, 1, 2.0),
])
pocket2 = body.newObject("PartDesign::Pocket", "Pocket001")
pocket2.Profile = sketch4
pocket2.Length = 11
pocket2.Reversed = True

# Sketch on XZ plane
sketch5 = body.newObject("Sketcher::SketchObject", "Sketch004")
sketch5.AttachmentSupport = (doc.getObject("XZ_Plane"), [""])
sketch5.MapMode = "FlatFace"
sketch5.AttachmentOffset = App.Placement(V(0, 0, -5), App.Rotation())
sketch5.addGeometry([
    Part.Circle(V(-4, -57, 0), V(0, 0, 1), 1),
    Part.Circle(V(4, -57, 0), V(0, 0, 1), 1),
], False)
sketch5.addConstraint([
    Sketcher.Constraint("Equal", 0, 1),
    Sketcher.Constraint("Symmetric", 0, 3, 1, 3, -2),
    Sketcher.Constraint("Diameter", 0, 2.0),
    Sketcher.Constraint("DistanceX", 0, 3, -1, 1, 4.0),
    Sketcher.Constraint("DistanceY", 0, 3, -1, 1, 57.0),
])
pocket3 = body.newObject("PartDesign::Pocket", "Pocket002")
pocket3.Profile = sketch5
pocket3.Length = 5
pocket3.Reversed = True

# Sketch on XZ plane
sketch6 = body.newObject("Sketcher::SketchObject", "Sketch005")
sketch6.AttachmentSupport = (doc.getObject("XZ_Plane"), [""])
sketch6.MapMode = "FlatFace"
sketch6.addGeometry([
    Part.Circle(V(0, 0, 0), V(0, 0, 1), 62.5),
    Part.Circle(V(0, 0, 0), V(0, 0, 1), 12.5),
], False)
sketch6.addConstraint([
    Sketcher.Constraint("Coincident", 0, 3, -1, 1),
    Sketcher.Constraint("Coincident", 1, 3, -1, 1),
    Sketcher.Constraint("Diameter", 0, 125.0),
    Sketcher.Constraint("Diameter", 1, 25.0),
])
pocket4 = body.newObject("PartDesign::Pocket", "Pocket003")
pocket4.Profile = sketch6
pocket4.Length = 1

doc.recompute()
